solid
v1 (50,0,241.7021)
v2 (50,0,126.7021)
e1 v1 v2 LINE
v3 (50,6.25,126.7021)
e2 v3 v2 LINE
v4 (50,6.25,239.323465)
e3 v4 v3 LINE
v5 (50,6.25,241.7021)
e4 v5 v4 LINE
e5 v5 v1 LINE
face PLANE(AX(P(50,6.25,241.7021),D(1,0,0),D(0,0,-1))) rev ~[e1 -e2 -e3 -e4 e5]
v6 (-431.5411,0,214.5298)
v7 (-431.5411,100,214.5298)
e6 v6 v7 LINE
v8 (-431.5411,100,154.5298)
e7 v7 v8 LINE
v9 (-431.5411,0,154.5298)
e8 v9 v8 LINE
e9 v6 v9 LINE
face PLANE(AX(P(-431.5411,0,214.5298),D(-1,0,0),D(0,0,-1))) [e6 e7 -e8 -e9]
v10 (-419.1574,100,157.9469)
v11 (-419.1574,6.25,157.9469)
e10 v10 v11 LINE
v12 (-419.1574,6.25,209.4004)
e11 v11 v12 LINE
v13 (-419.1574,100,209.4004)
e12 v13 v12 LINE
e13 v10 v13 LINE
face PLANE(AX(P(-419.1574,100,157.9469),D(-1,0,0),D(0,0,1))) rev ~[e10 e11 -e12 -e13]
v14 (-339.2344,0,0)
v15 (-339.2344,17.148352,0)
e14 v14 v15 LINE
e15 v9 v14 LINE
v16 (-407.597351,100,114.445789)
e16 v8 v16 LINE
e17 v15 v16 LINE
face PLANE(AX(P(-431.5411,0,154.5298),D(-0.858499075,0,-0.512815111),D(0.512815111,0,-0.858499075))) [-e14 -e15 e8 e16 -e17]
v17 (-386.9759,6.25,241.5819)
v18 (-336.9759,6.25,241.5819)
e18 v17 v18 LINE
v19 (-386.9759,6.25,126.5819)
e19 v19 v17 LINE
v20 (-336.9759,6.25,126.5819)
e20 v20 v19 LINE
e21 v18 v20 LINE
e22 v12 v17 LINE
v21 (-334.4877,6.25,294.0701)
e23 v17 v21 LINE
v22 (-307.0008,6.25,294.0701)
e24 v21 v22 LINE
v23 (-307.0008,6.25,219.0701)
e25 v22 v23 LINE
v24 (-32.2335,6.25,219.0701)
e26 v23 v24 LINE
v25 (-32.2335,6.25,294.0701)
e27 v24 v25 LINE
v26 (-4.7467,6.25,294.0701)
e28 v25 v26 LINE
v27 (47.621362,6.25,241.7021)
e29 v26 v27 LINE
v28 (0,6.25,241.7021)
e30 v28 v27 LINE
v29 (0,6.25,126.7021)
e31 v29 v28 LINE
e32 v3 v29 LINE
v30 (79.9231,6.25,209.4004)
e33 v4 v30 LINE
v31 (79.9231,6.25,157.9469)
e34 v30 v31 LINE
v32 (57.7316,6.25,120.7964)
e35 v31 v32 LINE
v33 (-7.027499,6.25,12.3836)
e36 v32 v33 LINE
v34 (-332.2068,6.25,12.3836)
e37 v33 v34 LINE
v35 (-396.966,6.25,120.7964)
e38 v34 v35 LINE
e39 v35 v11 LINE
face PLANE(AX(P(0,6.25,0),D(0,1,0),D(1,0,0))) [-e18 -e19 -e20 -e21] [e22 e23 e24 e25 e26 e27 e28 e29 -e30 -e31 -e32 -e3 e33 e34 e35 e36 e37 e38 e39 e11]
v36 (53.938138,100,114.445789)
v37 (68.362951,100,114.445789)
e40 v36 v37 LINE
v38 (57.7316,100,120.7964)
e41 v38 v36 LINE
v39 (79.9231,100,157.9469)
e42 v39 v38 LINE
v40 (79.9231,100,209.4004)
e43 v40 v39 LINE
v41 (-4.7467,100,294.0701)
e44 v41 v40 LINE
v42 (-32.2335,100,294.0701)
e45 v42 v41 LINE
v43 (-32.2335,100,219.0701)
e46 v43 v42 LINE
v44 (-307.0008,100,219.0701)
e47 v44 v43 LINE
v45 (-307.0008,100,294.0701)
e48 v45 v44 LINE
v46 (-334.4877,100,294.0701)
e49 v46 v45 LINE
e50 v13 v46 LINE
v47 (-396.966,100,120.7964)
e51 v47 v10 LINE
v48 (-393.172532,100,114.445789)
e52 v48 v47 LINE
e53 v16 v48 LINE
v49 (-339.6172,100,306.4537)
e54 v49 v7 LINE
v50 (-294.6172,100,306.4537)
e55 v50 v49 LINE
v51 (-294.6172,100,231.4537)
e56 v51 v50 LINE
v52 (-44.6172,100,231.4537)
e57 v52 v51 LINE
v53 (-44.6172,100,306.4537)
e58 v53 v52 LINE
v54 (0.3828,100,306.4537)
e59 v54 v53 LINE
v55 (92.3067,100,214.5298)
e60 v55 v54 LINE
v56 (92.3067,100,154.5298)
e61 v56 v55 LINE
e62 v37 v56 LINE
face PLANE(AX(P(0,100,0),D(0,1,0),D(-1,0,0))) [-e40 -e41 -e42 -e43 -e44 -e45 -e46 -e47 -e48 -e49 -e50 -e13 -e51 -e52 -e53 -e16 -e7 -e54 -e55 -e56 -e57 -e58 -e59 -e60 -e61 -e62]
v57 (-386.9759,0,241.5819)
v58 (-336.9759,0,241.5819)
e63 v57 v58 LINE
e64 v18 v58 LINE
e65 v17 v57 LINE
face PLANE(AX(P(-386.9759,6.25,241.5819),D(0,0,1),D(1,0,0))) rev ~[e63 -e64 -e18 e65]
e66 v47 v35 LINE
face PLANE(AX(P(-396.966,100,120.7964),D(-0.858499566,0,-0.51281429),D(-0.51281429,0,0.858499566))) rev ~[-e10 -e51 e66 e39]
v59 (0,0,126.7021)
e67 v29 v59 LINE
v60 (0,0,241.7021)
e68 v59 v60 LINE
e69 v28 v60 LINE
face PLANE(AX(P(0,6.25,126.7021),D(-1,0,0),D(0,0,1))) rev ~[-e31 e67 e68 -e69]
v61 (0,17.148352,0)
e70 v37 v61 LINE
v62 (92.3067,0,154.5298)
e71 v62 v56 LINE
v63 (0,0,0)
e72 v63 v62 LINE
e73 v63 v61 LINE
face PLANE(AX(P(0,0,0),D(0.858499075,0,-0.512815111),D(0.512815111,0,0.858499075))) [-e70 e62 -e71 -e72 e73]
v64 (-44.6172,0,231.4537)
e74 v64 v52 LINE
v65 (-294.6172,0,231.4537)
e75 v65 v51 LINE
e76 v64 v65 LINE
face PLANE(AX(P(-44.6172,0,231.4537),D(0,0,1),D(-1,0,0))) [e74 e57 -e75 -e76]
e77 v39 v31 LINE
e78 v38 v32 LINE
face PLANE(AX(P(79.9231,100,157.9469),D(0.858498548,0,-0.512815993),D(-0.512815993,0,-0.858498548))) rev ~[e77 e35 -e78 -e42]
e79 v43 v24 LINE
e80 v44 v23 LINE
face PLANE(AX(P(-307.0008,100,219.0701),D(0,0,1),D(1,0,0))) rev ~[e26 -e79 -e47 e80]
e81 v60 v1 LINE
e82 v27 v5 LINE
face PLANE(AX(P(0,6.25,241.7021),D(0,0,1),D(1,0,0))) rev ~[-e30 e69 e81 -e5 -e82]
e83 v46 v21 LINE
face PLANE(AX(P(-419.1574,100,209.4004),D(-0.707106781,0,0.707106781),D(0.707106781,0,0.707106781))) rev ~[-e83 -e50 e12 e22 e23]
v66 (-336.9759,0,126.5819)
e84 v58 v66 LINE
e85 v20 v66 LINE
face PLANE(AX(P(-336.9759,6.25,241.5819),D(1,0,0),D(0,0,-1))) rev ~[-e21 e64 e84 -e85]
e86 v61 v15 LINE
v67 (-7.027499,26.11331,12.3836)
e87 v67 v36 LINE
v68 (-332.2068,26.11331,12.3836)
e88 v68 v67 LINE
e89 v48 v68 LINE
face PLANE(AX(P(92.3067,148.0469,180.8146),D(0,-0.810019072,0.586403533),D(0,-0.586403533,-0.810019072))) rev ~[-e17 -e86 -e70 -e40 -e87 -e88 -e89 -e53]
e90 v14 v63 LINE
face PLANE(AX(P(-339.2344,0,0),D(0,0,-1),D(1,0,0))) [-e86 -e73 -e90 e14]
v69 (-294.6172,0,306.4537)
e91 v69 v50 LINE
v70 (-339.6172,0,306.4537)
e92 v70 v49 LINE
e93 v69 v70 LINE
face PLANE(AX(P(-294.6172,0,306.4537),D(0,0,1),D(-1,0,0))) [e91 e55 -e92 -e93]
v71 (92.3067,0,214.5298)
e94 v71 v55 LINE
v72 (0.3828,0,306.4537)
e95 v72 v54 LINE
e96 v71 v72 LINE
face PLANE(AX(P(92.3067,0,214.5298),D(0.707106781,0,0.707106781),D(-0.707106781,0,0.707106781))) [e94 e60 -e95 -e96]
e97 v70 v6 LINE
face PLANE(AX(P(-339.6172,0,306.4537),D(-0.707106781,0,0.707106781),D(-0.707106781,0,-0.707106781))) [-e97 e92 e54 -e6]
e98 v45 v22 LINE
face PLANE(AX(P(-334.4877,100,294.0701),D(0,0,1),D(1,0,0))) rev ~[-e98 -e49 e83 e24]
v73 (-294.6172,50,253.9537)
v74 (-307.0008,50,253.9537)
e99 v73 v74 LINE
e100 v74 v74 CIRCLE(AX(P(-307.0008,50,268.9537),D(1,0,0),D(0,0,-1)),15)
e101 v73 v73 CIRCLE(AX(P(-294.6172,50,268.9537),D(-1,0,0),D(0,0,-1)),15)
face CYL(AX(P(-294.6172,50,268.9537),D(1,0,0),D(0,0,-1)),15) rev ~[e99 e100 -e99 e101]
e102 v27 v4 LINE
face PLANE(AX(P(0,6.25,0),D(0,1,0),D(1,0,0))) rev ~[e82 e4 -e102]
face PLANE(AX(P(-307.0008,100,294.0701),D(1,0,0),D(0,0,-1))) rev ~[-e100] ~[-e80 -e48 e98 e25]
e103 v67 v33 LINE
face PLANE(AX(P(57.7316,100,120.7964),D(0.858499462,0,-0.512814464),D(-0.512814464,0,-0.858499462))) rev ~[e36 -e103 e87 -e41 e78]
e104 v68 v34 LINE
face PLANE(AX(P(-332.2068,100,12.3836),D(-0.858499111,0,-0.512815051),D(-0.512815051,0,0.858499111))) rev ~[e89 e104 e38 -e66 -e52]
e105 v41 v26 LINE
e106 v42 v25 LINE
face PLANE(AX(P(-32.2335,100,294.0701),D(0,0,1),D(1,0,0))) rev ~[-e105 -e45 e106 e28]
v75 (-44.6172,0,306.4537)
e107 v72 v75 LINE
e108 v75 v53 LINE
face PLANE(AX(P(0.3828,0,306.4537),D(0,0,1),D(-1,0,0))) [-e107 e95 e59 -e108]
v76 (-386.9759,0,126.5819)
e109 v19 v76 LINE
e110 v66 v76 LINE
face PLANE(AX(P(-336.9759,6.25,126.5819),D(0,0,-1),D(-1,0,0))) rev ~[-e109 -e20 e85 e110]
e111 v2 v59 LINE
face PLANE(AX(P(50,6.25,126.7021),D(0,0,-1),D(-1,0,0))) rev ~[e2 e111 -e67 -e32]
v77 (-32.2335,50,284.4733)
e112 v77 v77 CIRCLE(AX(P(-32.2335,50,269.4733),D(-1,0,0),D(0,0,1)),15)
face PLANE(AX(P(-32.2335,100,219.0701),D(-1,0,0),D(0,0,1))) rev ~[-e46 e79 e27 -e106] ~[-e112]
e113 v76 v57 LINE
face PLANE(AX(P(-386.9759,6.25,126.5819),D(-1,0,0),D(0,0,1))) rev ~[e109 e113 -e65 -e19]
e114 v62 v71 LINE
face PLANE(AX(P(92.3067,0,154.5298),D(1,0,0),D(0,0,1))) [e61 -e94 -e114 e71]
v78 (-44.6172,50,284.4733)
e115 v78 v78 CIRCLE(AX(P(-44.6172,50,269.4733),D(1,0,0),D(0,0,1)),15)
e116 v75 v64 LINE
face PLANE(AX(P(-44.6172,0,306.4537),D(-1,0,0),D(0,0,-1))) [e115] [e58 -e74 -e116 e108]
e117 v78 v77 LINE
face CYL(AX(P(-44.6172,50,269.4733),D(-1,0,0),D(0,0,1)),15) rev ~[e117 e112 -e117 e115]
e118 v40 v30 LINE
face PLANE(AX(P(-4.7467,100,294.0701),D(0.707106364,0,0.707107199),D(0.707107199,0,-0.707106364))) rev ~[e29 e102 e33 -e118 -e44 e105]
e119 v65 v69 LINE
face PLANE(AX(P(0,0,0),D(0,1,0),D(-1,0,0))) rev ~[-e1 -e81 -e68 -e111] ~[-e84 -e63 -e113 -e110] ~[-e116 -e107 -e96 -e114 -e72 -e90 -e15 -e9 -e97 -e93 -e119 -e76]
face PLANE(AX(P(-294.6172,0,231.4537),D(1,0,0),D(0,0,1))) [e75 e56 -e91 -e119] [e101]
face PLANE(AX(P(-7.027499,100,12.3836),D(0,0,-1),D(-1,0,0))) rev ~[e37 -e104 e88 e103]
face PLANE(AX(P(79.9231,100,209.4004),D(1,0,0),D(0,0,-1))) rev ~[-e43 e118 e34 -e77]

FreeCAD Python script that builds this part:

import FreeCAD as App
import Part
import Sketcher

V = App.Vector
Q = App.Units.Quantity


def add_polygon(sketch, points):
    """Adds a closed chain of lines whose ends are joined by coincident constraints."""
    first, n = sketch.GeometryCount, len(points)
    for a, b in zip(points, points[1:] + points[:1]):
        sketch.addGeometry(Part.LineSegment(App.Vector(*a, 0), App.Vector(*b, 0)), False)
    for i in range(n):
        sketch.addConstraint(Sketcher.Constraint("Coincident", first + i, 2, first + (i + 1) % n, 1))

doc = App.newDocument("Part")
body = doc.addObject("PartDesign::Body", "Body")

# Sketch on XZ plane
sketch1 = body.newObject("Sketcher::SketchObject", "Sketch")
sketch1.AttachmentSupport = (doc.getObject("XZ_Plane"), [""])
sketch1.MapMode = "FlatFace"
add_polygon(sketch1, [(92, 155), (0, 0), (-339, 0), (-432, 155), (-432, 215), (-340, 306), (-295, 306), (-295, 231), (-45, 231), (-45, 306), (0, 306), (92, 215)])  # lines 0-11
sketch1.addConstraint([
    Sketcher.Constraint("Horizontal", 1),
    Sketcher.Constraint("Vertical", 3),
    Sketcher.Constraint("Horizontal", 5),
    Sketcher.Constraint("Vertical", 6),
    Sketcher.Constraint("Horizontal", 7),
    Sketcher.Constraint("Vertical", 8),
    Sketcher.Constraint("Horizontal", 9),
    Sketcher.Constraint("Vertical", 11),
    Sketcher.Constraint("Coincident", 0, 2, -1, 1),
    Sketcher.Constraint("Perpendicular", 4, 10),
    Sketcher.Constraint("Horizontal", 5, 2, 8, 2),
    Sketcher.Constraint("Horizontal", 3, 2, 10, 2),
    Sketcher.Constraint("Horizontal", 2, 2, 11, 2),
    Sketcher.Constraint("Equal", 5, 9),
    Sketcher.Constraint("Equal", 0, 2),
    Sketcher.Constraint("Equal", 4, 10),
    Sketcher.Constraint("DistanceX", 5, 1, 5, 2, 45.0),
    Sketcher.Constraint("DistanceX", 7, 1, 7, 2, 250.0),
    Sketcher.Constraint("DistanceY", 3, 1, 3, 2, 60.0),
    Sketcher.Constraint("DistanceY", 6, 2, 6, 1, 75.0),
    Sketcher.Constraint("Distance", 0, 180.0),
    Sketcher.Constraint("Distance", 4, 130.0),
    Sketcher.Constraint("DistanceX", 1, 2, 1, 1, 339.2344),
])
pad1 = body.newObject("PartDesign::Pad", "Pad")
pad1.Profile = sketch1
pad1.Length = 100
pad1.Reversed = True

# Sketch on YZ plane
sketch2 = body.newObject("Sketcher::SketchObject", "Sketch001")
sketch2.AttachmentSupport = (doc.getObject("YZ_Plane"), [""])
sketch2.MapMode = "FlatFace"
sketch2.AttachmentOffset = App.Placement(V(0, 0, 92.3067), App.Rotation())
add_polygon(sketch2, [(223, 79), (148, 181), (0, -24), (131, -118)])  # lines 0-3
sketch2.addConstraint([
    Sketcher.Constraint("PointOnObject", 1, 2, -2),
    Sketcher.Constraint("Perpendicular", 1, 2),
    Sketcher.Constraint("Angle", 3, Q("64.8995 deg")),
    Sketcher.Constraint("Distance", 1, 252.466),
    Sketcher.Constraint("DistanceX", -1, 1, 0, 2, 148.047),
    Sketcher.Constraint("DistanceY", 3, 2, 0, 2, 102.251),
    Sketcher.Constraint("Distance", 0, 126.8143),
    Sketcher.Constraint("DistanceY", -1, 1, 0, 2, 180.8146),
])
pocket1 = body.newObject("PartDesign::Pocket", "Pocket")
pocket1.Profile = sketch2
pocket1.Length = 600.5

# Sketch on XZ plane
sketch3 = body.newObject("Sketcher::SketchObject", "Sketch002")
sketch3.AttachmentSupport = (doc.getObject("XZ_Plane"), [""])
sketch3.MapMode = "FlatFace"
sketch3.AttachmentOffset = App.Placement(V(0, 0, -100), App.Rotation())
add_polygon(sketch3, [(58, 121), (-7, 12), (-332, 12), (-397, 121), (-419, 158), (-419, 209), (-334, 294), (-307, 294), (-307, 219), (-32, 219), (-32, 294), (-5, 294), (80, 209), (80, 158)])  # lines 0-13
sketch3.addConstraint([
    Sketcher.Constraint("Horizontal", 1),
    Sketcher.Constraint("Vertical", 4),
    Sketcher.Constraint("Horizontal", 6),
    Sketcher.Constraint("Vertical", 7),
    Sketcher.Constraint("Horizontal", 8),
    Sketcher.Constraint("Vertical", 9),
    Sketcher.Constraint("Horizontal", 10),
    Sketcher.Constraint("Vertical", 12),
    Sketcher.Constraint("Parallel", 2, 3),
    Sketcher.Constraint("Perpendicular", 5, 11),
    Sketcher.Constraint("Parallel", 0, 13),
    Sketcher.Constraint("Horizontal", 6, 2, 9, 2),
    Sketcher.Constraint("Horizontal", 4, 2, 11, 2),
    Sketcher.Constraint("Horizontal", 3, 2, 12, 2),
    Sketcher.Constraint("Horizontal", 2, 2, 13, 2),
    Sketcher.Constraint("Equal", 6, 10),
    Sketcher.Constraint("Equal", 0, 2),
    Sketcher.Constraint("Equal", 5, 11),
    Sketcher.Constraint("DistanceY", 7, 2, 7, 1, 75.0),
    Sketcher.Constraint("DistanceX", 6, 1, 6, 2, 27.487),
    Sketcher.Constraint("DistanceY", -1, 1, 5, 2, 294.07),
    Sketcher.Constraint("DistanceX", 3, 2, 0, 2, 412.13),
    Sketcher.Constraint("Distance", 5, 119.741),
    Sketcher.Constraint("DistanceX", 1, 2, 1, 1, 325.1793),
    Sketcher.Constraint("DistanceY", 4, 1, 4, 2, 51.4535),
    Sketcher.Constraint("DistanceX", 2, 2, -1, 1, 396.966),
    Sketcher.Constraint("DistanceX", -1, 1, 11, 2, 79.923),
    Sketcher.Constraint("DistanceY", 2, 2, 4, 2, 88.604),
])
pocket2 = body.newObject("PartDesign::Pocket", "Pocket001")
pocket2.Profile = sketch3
pocket2.Length = 93.75
pocket2.Reversed = True

# Sketch on XZ plane
sketch4 = body.newObject("Sketcher::SketchObject", "Sketch003")
sketch4.AttachmentSupport = (doc.getObject("XZ_Plane"), [""])
sketch4.MapMode = "FlatFace"
sketch4.AttachmentOffset = App.Placement(V(0, 0, -6.25), App.Rotation())
add_polygon(sketch4, [(0, 127), (0, 242), (50, 242), (50, 127)])  # lines 0-3
add_polygon(sketch4, [(-387, 127), (-387, 242), (-337, 242), (-337, 127)])  # lines 4-7
sketch4.addConstraint([
    Sketcher.Constraint("Vertical", 0),
    Sketcher.Constraint("Horizontal", 1),
    Sketcher.Constraint("Vertical", 2),
    Sketcher.Constraint("Horizontal", 3),
    Sketcher.Constraint("Vertical", 4),
    Sketcher.Constraint("Horizontal", 5),
    Sketcher.Constraint("Vertical", 6),
    Sketcher.Constraint("Horizontal", 7),
    Sketcher.Constraint("PointOnObject", 0, 2, -2),
    Sketcher.Constraint("Equal", 3, 5),
    Sketcher.Constraint("Equal", 2, 4),
    Sketcher.Constraint("DistanceX", 1, 1, 1, 2, 50.0),
    Sketcher.Constraint("DistanceY", 0, 1, 0, 2, 115.0),
    Sketcher.Constraint("DistanceX", 5, 2, -1, 1, 336.976),
    Sketcher.Constraint("DistanceY", -1, 1, 0, 2, 241.702),
    Sketcher.Constraint("DistanceY", -1, 1, 4, 2, 241.582),
])
pocket3 = body.newObject("PartDesign::Pocket", "Pocket002")
pocket3.Profile = sketch4
pocket3.Length = 93.75
pocket3.Reversed = True

# Sketch on YZ plane
sketch5 = body.newObject("Sketcher::SketchObject", "Sketch004")
sketch5.AttachmentSupport = (doc.getObject("YZ_Plane"), [""])
sketch5.MapMode = "FlatFace"
sketch5.AttachmentOffset = App.Placement(V(0, 0, -294.6172), App.Rotation())
sketch5.addGeometry([
    Part.Circle(V(50, 269, 0), V(0, 0, 1), 15),
    Part.Circle(V(48, 365, 0), V(0, 0, 1), 15),
], False)
sketch5.addConstraint([
    Sketcher.Constraint("Equal", 0, 1),
    Sketcher.Constraint("Diameter", 0, 30.0),
    Sketcher.Constraint("DistanceX", -1, 1, 0, 3, 50.0),
    Sketcher.Constraint("DistanceX", -1, 1, 1, 3, 47.984),
    Sketcher.Constraint("DistanceY", -1, 1, 1, 3, 364.637),
    Sketcher.Constraint("DistanceY", -1, 1, 0, 3, 268.9537),
])
pocket4 = body.newObject("PartDesign::Pocket", "Pocket003")
pocket4.Profile = sketch5
pocket4.Length = 20

# Sketch on YZ plane
sketch6 = body.newObject("Sketcher::SketchObject", "Sketch005")
sketch6.AttachmentSupport = (doc.getObject("YZ_Plane"), [""])
sketch6.MapMode = "FlatFace"
sketch6.AttachmentOffset = App.Placement(V(0, 0, -44.6172), App.Rotation())
sketch6.addGeometry(Part.Circle(V(50, 269, 0), V(0, 0, 1), 15), False)
sketch6.addConstraint([
    Sketcher.Constraint("Diameter", 0, 30.0),
    Sketcher.Constraint("DistanceX", -1, 1, 0, 3, 50.0),
    Sketcher.Constraint("DistanceY", -1, 1, 0, 3, 269.4733),
])
pocket5 = body.newObject("PartDesign::Pocket", "Pocket004")
pocket5.Profile = sketch6
pocket5.Length = 20
pocket5.Reversed = True

doc.recompute()
